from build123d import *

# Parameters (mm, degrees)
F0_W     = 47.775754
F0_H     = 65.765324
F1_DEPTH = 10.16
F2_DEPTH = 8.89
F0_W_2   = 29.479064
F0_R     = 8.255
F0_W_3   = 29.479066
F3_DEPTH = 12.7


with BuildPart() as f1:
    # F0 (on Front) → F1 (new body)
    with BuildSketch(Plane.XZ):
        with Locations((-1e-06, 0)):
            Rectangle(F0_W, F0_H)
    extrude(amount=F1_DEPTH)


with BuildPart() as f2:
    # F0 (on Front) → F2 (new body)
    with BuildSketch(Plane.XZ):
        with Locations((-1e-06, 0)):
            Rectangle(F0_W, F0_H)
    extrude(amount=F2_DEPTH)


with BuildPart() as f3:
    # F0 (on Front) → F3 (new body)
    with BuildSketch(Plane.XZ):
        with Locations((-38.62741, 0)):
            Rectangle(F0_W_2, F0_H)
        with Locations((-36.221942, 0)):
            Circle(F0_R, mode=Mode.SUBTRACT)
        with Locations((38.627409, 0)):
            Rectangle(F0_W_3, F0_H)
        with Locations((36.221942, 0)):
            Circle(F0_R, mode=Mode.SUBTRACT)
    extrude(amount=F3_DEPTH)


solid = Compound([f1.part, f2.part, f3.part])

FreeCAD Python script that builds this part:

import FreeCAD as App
import Part
import Sketcher
Q = App.Units.Quantity

doc = App.newDocument("Part")
body = doc.addObject("PartDesign::Body", "Body")

# Sketch on XZ plane
sketch1 = body.newObject("Sketcher::SketchObject", "Sketch")
sketch1.AttachmentSupport = (doc.getObject("XZ_Plane"), [""])
sketch1.MapMode = "FlatFace"
sketch1.addGeometry(Part.LineSegment(App.Vector(-23.887877, 32.882662, 0), App.Vector(-23.887877, -32.882662, 0)), False)
sketch1.addGeometry(Part.LineSegment(App.Vector(-23.887877, -32.882662, 0), App.Vector(23.887877, -32.882662, 0)), False)
sketch1.addGeometry(Part.LineSegment(App.Vector(23.887877, -32.882662, 0), App.Vector(23.887877, 32.882662, 0)), False)
sketch1.addGeometry(Part.LineSegment(App.Vector(23.887877, 32.882662, 0), App.Vector(-23.887877, 32.882662, 0)), False)
sketch1.addConstraint(Sketcher.Constraint("Coincident", 0, 2, 1, 1))
sketch1.addConstraint(Sketcher.Constraint("Coincident", 1, 2, 2, 1))
sketch1.addConstraint(Sketcher.Constraint("Coincident", 2, 2, 3, 1))
sketch1.addConstraint(Sketcher.Constraint("Coincident", 3, 2, 0, 1))
sketch1.addConstraint(Sketcher.Constraint("Vertical", 0))
sketch1.addConstraint(Sketcher.Constraint("Horizontal", 1))
sketch1.addConstraint(Sketcher.Constraint("Vertical", 2))
sketch1.addConstraint(Sketcher.Constraint("Horizontal", 3))
sketch1.addConstraint(Sketcher.Constraint("Symmetric", 0, 2, 2, 2, -1, 1))
sketch1.addConstraint(Sketcher.Constraint("DistanceX", 1, 1, 1, 2, Q("47.775754 mm")))
sketch1.addConstraint(Sketcher.Constraint("DistanceY", 0, 2, 0, 1, Q("65.765324 mm")))
pad1 = body.newObject("PartDesign::Pad", "Pad")
pad1.Profile = sketch1
pad1.Length = Q("0.4 in")
body2 = doc.addObject("PartDesign::Body", "Body001")

# Sketch on XZ plane
sketch2 = body2.newObject("Sketcher::SketchObject", "Sketch001")
sketch2.AttachmentSupport = (doc.getObject("XZ_Plane001"), [""])
sketch2.MapMode = "FlatFace"
sketch2.addGeometry(Part.LineSegment(App.Vector(-23.887877, 32.882662, 0), App.Vector(-23.887877, -32.882662, 0)), False)
sketch2.addGeometry(Part.LineSegment(App.Vector(-23.887877, -32.882662, 0), App.Vector(23.887877, -32.882662, 0)), False)
sketch2.addGeometry(Part.LineSegment(App.Vector(23.887877, -32.882662, 0), App.Vector(23.887877, 32.882662, 0)), False)
sketch2.addGeometry(Part.LineSegment(App.Vector(23.887877, 32.882662, 0), App.Vector(-23.887877, 32.882662, 0)), False)
sketch2.addConstraint(Sketcher.Constraint("Coincident", 0, 2, 1, 1))
sketch2.addConstraint(Sketcher.Constraint("Coincident", 1, 2, 2, 1))
sketch2.addConstraint(Sketcher.Constraint("Coincident", 2, 2, 3, 1))
sketch2.addConstraint(Sketcher.Constraint("Coincident", 3, 2, 0, 1))
sketch2.addConstraint(Sketcher.Constraint("Vertical", 0))
sketch2.addConstraint(Sketcher.Constraint("Horizontal", 1))
sketch2.addConstraint(Sketcher.Constraint("Vertical", 2))
sketch2.addConstraint(Sketcher.Constraint("Horizontal", 3))
sketch2.addConstraint(Sketcher.Constraint("Symmetric", 0, 2, 2, 2, -1, 1))
sketch2.addConstraint(Sketcher.Constraint("DistanceX", 1, 1, 1, 2, Q("47.775754 mm")))
sketch2.addConstraint(Sketcher.Constraint("DistanceY", 0, 2, 0, 1, Q("65.765324 mm")))
pad2 = body2.newObject("PartDesign::Pad", "Pad001")
pad2.Profile = sketch2
pad2.Length = Q("0.35 in")
body3 = doc.addObject("PartDesign::Body", "Body002")
body3.AllowCompound = True

# Sketch on XZ plane
sketch3 = body3.newObject("Sketcher::SketchObject", "Sketch002")
sketch3.AttachmentSupport = (doc.getObject("XZ_Plane002"), [""])
sketch3.MapMode = "FlatFace"
sketch3.addGeometry(Part.LineSegment(App.Vector(-53.366942, 32.882662, 0), App.Vector(-53.366942, -32.882662, 0)), False)
sketch3.addGeometry(Part.LineSegment(App.Vector(-53.366942, -32.882662, 0), App.Vector(-23.887878, -32.882662, 0)), False)
sketch3.addGeometry(Part.LineSegment(App.Vector(-23.887878, -32.882662, 0), App.Vector(-23.887878, 32.882662, 0)), False)
sketch3.addGeometry(Part.LineSegment(App.Vector(-23.887878, 32.882662, 0), App.Vector(-53.366942, 32.882662, 0)), False)
sketch3.addGeometry(Part.Circle(App.Vector(-36.221942, 0, 0), App.Vector(0, 0, 1), 8.255), False)
sketch3.addGeometry(Part.LineSegment(App.Vector(23.887876, 32.882662, 0), App.Vector(23.887876, -32.882662, 0)), False)
sketch3.addGeometry(Part.LineSegment(App.Vector(23.887876, -32.882662, 0), App.Vector(53.366942, -32.882662, 0)), False)
sketch3.addGeometry(Part.LineSegment(App.Vector(53.366942, -32.882662, 0), App.Vector(53.366942, 32.882662, 0)), False)
sketch3.addGeometry(Part.LineSegment(App.Vector(53.366942, 32.882662, 0), App.Vector(23.887876, 32.882662, 0)), False)
sketch3.addGeometry(Part.Circle(App.Vector(36.221942, 0, 0), App.Vector(0, 0, 1), 8.255), False)
sketch3.addConstraint(Sketcher.Constraint("Coincident", 0, 2, 1, 1))
sketch3.addConstraint(Sketcher.Constraint("Coincident", 1, 2, 2, 1))
sketch3.addConstraint(Sketcher.Constraint("Coincident", 2, 2, 3, 1))
sketch3.addConstraint(Sketcher.Constraint("Coincident", 3, 2, 0, 1))
sketch3.addConstraint(Sketcher.Constraint("Coincident", 5, 2, 6, 1))
sketch3.addConstraint(Sketcher.Constraint("Coincident", 6, 2, 7, 1))
sketch3.addConstraint(Sketcher.Constraint("Coincident", 7, 2, 8, 1))
sketch3.addConstraint(Sketcher.Constraint("Coincident", 8, 2, 5, 1))
sketch3.addConstraint(Sketcher.Constraint("Vertical", 0))
sketch3.addConstraint(Sketcher.Constraint("Horizontal", 1))
sketch3.addConstraint(Sketcher.Constraint("Vertical", 2))
sketch3.addConstraint(Sketcher.Constraint("Horizontal", 3))
sketch3.addConstraint(Sketcher.Constraint("Vertical", 5))
sketch3.addConstraint(Sketcher.Constraint("Horizontal", 6))
sketch3.addConstraint(Sketcher.Constraint("Vertical", 7))
sketch3.addConstraint(Sketcher.Constraint("Horizontal", 8))
sketch3.addConstraint(Sketcher.Constraint("Equal", 4, 9))
sketch3.addConstraint(Sketcher.Constraint("Symmetric", 4, 3, 9, 3, -1, 1))
sketch3.addConstraint(Sketcher.Constraint("Symmetric", 2, 2, 5, 2, -1, 1))
sketch3.addConstraint(Sketcher.Constraint("Symmetric", 0, 2, 7, 2, -1, 1))
sketch3.addConstraint(Sketcher.Constraint("PointOnObject", 4, 3, -1))
sketch3.addConstraint(Sketcher.Constraint("Horizontal", 1, 2, 5, 2))
sketch3.addConstraint(Sketcher.Constraint("Diameter", 4, Q("0.65 in")))
sketch3.addConstraint(Sketcher.Constraint("DistanceX", 0, 2, 4, 3, Q("0.675 in")))
sketch3.addConstraint(Sketcher.Constraint("DistanceX", 1, 1, 1, 2, Q("29.479064 mm")))
sketch3.addConstraint(Sketcher.Constraint("DistanceY", 0, 2, 0, 1, Q("65.765324 mm")))
sketch3.addConstraint(Sketcher.Constraint("DistanceX", 1, 2, -1, 1, Q("23.887878 mm")))
pad3 = body3.newObject("PartDesign::Pad", "Pad002")
pad3.Profile = sketch3
pad3.Length = Q("0.5 in")

doc.recompute()
